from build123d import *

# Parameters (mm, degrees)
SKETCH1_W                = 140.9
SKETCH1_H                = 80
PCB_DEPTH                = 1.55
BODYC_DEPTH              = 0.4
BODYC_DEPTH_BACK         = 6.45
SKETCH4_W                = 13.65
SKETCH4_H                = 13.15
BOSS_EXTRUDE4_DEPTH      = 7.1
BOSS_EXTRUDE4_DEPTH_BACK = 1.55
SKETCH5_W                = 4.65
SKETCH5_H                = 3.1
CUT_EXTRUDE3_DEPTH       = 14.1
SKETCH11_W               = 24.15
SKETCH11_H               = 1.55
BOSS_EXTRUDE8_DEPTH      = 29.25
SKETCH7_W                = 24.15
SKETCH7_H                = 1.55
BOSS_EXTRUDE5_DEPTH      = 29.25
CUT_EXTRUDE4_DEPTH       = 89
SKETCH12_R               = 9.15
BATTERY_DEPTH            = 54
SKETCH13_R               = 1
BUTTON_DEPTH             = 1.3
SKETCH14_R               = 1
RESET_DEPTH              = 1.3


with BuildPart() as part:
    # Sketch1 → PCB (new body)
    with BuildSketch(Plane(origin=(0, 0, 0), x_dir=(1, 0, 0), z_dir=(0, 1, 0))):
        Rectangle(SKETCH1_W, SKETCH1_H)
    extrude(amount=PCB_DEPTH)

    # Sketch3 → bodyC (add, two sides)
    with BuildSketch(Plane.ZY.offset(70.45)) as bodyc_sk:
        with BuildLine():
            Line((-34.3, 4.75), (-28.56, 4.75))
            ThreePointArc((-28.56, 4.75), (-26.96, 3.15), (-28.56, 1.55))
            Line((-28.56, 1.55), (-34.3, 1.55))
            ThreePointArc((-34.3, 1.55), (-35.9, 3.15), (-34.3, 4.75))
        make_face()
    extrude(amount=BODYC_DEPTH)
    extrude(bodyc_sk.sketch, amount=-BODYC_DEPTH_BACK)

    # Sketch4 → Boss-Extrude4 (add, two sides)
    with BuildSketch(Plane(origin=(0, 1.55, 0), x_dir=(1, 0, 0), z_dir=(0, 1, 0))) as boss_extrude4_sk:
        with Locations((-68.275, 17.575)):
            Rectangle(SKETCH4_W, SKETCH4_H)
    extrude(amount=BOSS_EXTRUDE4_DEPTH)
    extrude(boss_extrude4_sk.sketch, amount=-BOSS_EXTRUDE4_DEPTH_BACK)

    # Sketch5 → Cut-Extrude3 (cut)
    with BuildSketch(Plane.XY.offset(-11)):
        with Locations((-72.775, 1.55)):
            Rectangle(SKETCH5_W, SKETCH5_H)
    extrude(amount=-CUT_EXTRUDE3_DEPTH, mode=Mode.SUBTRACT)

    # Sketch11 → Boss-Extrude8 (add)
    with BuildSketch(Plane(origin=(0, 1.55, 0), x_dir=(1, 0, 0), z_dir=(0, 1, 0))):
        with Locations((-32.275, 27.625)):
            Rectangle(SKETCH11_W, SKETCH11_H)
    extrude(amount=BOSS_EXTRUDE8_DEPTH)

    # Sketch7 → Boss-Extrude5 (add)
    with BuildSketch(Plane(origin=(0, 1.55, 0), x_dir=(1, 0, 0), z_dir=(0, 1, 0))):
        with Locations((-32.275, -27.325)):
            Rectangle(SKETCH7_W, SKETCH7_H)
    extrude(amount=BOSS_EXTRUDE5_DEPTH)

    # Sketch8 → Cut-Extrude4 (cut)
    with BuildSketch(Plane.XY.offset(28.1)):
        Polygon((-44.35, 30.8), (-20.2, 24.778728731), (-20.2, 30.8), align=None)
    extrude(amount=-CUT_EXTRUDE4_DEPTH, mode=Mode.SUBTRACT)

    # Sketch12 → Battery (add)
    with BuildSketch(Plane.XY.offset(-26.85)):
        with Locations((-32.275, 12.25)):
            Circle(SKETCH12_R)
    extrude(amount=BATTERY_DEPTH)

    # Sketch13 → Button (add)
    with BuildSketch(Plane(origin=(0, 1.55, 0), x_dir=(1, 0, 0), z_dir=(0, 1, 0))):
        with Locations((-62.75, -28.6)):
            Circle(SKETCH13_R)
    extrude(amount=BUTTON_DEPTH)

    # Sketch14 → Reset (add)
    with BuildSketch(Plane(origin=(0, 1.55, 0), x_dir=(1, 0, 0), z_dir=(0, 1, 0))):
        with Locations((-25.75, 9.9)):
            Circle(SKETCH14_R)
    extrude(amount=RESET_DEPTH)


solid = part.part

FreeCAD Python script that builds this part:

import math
import FreeCAD as App
import Part
import Sketcher
Q = App.Units.Quantity


def add_polygon(sketch, points):
    """Adds a closed chain of lines whose ends are joined by coincident constraints."""
    first, n = sketch.GeometryCount, len(points)
    for a, b in zip(points, points[1:] + points[:1]):
        sketch.addGeometry(Part.LineSegment(App.Vector(*a, 0), App.Vector(*b, 0)), False)
    for i in range(n):
        sketch.addConstraint(Sketcher.Constraint("Coincident", first + i, 2, first + (i + 1) % n, 1))

doc = App.newDocument("Part")
body = doc.addObject("PartDesign::Body", "Body")

# Sketch on XZ plane
sketch1 = doc.addObject("Sketcher::SketchObject", "Sketch")
body.addObject(sketch1)
sketch1.AttachmentSupport = (doc.XZ_Plane, [""])
sketch1.MapMode = "FlatFace"
add_polygon(sketch1, [(-70.45, -40), (-70.45, 40), (70.45, 40), (70.45, -40)])  # lines 0-3
sketch1.addConstraint([
    Sketcher.Constraint("Vertical", 0),
    Sketcher.Constraint("Horizontal", 1),
    Sketcher.Constraint("Vertical", 2),
    Sketcher.Constraint("Horizontal", 3),
    Sketcher.Constraint("Symmetric", 0, 2, 2, 2, -1, 1),
    Sketcher.Constraint("DistanceY", 0, 1, 0, 2, Q("80 mm")),
    Sketcher.Constraint("DistanceX", 1, 1, 1, 2, Q("140.9 mm")),
])
pad1 = doc.addObject("PartDesign::Pad", "Pad")
body.addObject(pad1)
pad1.Profile = sketch1
pad1.Length = 1.55
pad1.Reversed = True

# Sketch on YZ plane
sketch2 = doc.addObject("Sketcher::SketchObject", "Sketch001")
body.addObject(sketch2)
sketch2.AttachmentSupport = (doc.YZ_Plane, [""])
sketch2.MapMode = "FlatFace"
sketch2.AttachmentOffset = App.Placement(App.Vector(0, 0, -70.45), App.Rotation())
sketch2.addGeometry([
    Part.LineSegment(App.Vector(4.75, -28.56, 0), App.Vector(4.75, -34.3, 0)),
    Part.ArcOfCircle(Part.Circle(App.Vector(3.15, -34.3, 0), App.Vector(0, 0, 1), 1.6), math.radians(180), math.radians(360)),
    Part.LineSegment(App.Vector(1.55, -34.3, 0), App.Vector(1.55, -28.56, 0)),
    Part.ArcOfCircle(Part.Circle(App.Vector(3.15, -28.56, 0), App.Vector(0, 0, 1), 1.6), math.radians(0), math.radians(180)),
], False)
sketch2.addConstraint([
    Sketcher.Constraint("Tangent", 0, 2, 1, 2),
    Sketcher.Constraint("Tangent", 1, 1, 2, 1),
    Sketcher.Constraint("Tangent", 2, 2, 3, 2),
    Sketcher.Constraint("Tangent", 3, 1, 0, 1),
    Sketcher.Constraint("Vertical", 0),
    Sketcher.Constraint("Vertical", 2),
    Sketcher.Constraint("Radius", 1, Q("1.6 mm")),
    Sketcher.Constraint("DistanceY", 0, 2, 0, 1, Q("5.74 mm")),
    Sketcher.Constraint("DistanceY", 1, 3, -1, 1, Q("34.3 mm")),
    Sketcher.Constraint("DistanceX", -1, 1, 1, 3, Q("3.15 mm")),
])
pad2 = doc.addObject("PartDesign::Pad", "Pad001")
body.addObject(pad2)
pad2.Profile = sketch2
pad2.Type = "TwoLengths"
pad2.Length = 0.4
pad2.Length2 = 6.45
pad2.Reversed = True

# Sketch on XZ plane
sketch3 = doc.addObject("Sketcher::SketchObject", "Sketch002")
body.addObject(sketch3)
sketch3.AttachmentSupport = (doc.XZ_Plane, [""])
sketch3.MapMode = "FlatFace"
sketch3.AttachmentOffset = App.Placement(App.Vector(0, 0, -1.55), App.Rotation())
add_polygon(sketch3, [(-75.1, -24.15), (-75.1, -11), (-61.45, -11), (-61.45, -24.15)])  # lines 0-3
sketch3.addConstraint([
    Sketcher.Constraint("Vertical", 0),
    Sketcher.Constraint("Horizontal", 1),
    Sketcher.Constraint("Vertical", 2),
    Sketcher.Constraint("Horizontal", 3),
    Sketcher.Constraint("DistanceY", 0, 2, -1, 1, Q("11 mm")),
    Sketcher.Constraint("DistanceX", 1, 1, 1, 2, Q("13.65 mm")),
    Sketcher.Constraint("DistanceY", 0, 1, 0, 2, Q("13.15 mm")),
    Sketcher.Constraint("DistanceX", 0, 2, -1, 1, Q("75.1 mm")),
])
pad3 = doc.addObject("PartDesign::Pad", "Pad002")
body.addObject(pad3)
pad3.Profile = sketch3
pad3.Type = "TwoLengths"
pad3.Length = 7.1
pad3.Length2 = 1.55
pad3.Reversed = True

# Sketch on XY plane
sketch4 = doc.addObject("Sketcher::SketchObject", "Sketch003")
body.addObject(sketch4)
sketch4.AttachmentSupport = (doc.XY_Plane, [""])
sketch4.MapMode = "FlatFace"
sketch4.AttachmentOffset = App.Placement(App.Vector(0, 0, -11), App.Rotation())
add_polygon(sketch4, [(-75.1, 3.1), (-75.1, 0), (-70.45, 0), (-70.45, 3.1)])  # lines 0-3
sketch4.addConstraint([
    Sketcher.Constraint("Vertical", 0),
    Sketcher.Constraint("Horizontal", 1),
    Sketcher.Constraint("Vertical", 2),
    Sketcher.Constraint("Horizontal", 3),
    Sketcher.Constraint("PointOnObject", 0, 2, -1),
    Sketcher.Constraint("DistanceY", 0, 2, 0, 1, Q("3.1 mm")),
    Sketcher.Constraint("DistanceX", 1, 1, 1, 2, Q("4.65 mm")),
    Sketcher.Constraint("DistanceX", 0, 2, -1, 1, Q("75.1 mm")),
])
pocket1 = doc.addObject("PartDesign::Pocket", "Pocket")
body.addObject(pocket1)
pocket1.Profile = sketch4
pocket1.Length = 14.1

# Sketch on XZ plane
sketch5 = doc.addObject("Sketcher::SketchObject", "Sketch004")
body.addObject(sketch5)
sketch5.AttachmentSupport = (doc.XZ_Plane, [""])
sketch5.MapMode = "FlatFace"
sketch5.AttachmentOffset = App.Placement(App.Vector(0, 0, -1.55), App.Rotation())
add_polygon(sketch5, [(-44.35, -28.4), (-44.35, -26.85), (-20.2, -26.85), (-20.2, -28.4)])  # lines 0-3
sketch5.addConstraint([
    Sketcher.Constraint("Vertical", 0),
    Sketcher.Constraint("Horizontal", 1),
    Sketcher.Constraint("Vertical", 2),
    Sketcher.Constraint("Horizontal", 3),
    Sketcher.Constraint("DistanceX", 1, 1, 1, 2, Q("24.15 mm")),
    Sketcher.Constraint("DistanceY", 0, 1, 0, 2, Q("1.55 mm")),
    Sketcher.Constraint("DistanceX", 1, 2, -1, 1, Q("20.2 mm")),
    Sketcher.Constraint("DistanceY", 2, 2, -1, 1, Q("28.4 mm")),
])
pad4 = doc.addObject("PartDesign::Pad", "Pad003")
body.addObject(pad4)
pad4.Profile = sketch5
pad4.Length = 29.25
pad4.Reversed = True

# Sketch on XZ plane
sketch6 = doc.addObject("Sketcher::SketchObject", "Sketch005")
body.addObject(sketch6)
sketch6.AttachmentSupport = (doc.XZ_Plane, [""])
sketch6.MapMode = "FlatFace"
sketch6.AttachmentOffset = App.Placement(App.Vector(0, 0, -1.55), App.Rotation())
add_polygon(sketch6, [(-44.35, 26.55), (-44.35, 28.1), (-20.2, 28.1), (-20.2, 26.55)])  # lines 0-3
sketch6.addConstraint([
    Sketcher.Constraint("Vertical", 0),
    Sketcher.Constraint("Horizontal", 1),
    Sketcher.Constraint("Vertical", 2),
    Sketcher.Constraint("Horizontal", 3),
    Sketcher.Constraint("DistanceX", 1, 1, 1, 2, Q("24.15 mm")),
    Sketcher.Constraint("DistanceY", 0, 1, 0, 2, Q("1.55 mm")),
    Sketcher.Constraint("DistanceY", -1, 1, 0, 2, Q("28.1 mm")),
    Sketcher.Constraint("DistanceX", 1, 2, -1, 1, Q("20.2 mm")),
])
pad5 = doc.addObject("PartDesign::Pad", "Pad004")
body.addObject(pad5)
pad5.Profile = sketch6
pad5.Length = 29.25
pad5.Reversed = True

# Sketch on XY plane
sketch7 = doc.addObject("Sketcher::SketchObject", "Sketch006")
body.addObject(sketch7)
sketch7.AttachmentSupport = (doc.XY_Plane, [""])
sketch7.MapMode = "FlatFace"
sketch7.AttachmentOffset = App.Placement(App.Vector(0, 0, 28.1), App.Rotation())
add_polygon(sketch7, [(-44.35, 30.8), (-20.2, 24.778729), (-20.2, 30.8)])  # lines 0-2
sketch7.addConstraint([
    Sketcher.Constraint("Vertical", 1),
    Sketcher.Constraint("Horizontal", 2),
    Sketcher.Constraint("Angle", 0, Q("-14 deg")),
    Sketcher.Constraint("DistanceX", 2, 2, 2, 1, Q("24.15 mm")),
    Sketcher.Constraint("DistanceX", 0, 2, -1, 1, Q("20.2 mm")),
    Sketcher.Constraint("DistanceY", -1, 1, 1, 2, Q("30.8 mm")),
])
pocket2 = doc.addObject("PartDesign::Pocket", "Pocket001")
body.addObject(pocket2)
pocket2.Profile = sketch7
pocket2.Length = 89

# Sketch on XY plane
sketch8 = doc.addObject("Sketcher::SketchObject", "Sketch007")
body.addObject(sketch8)
sketch8.AttachmentSupport = (doc.XY_Plane, [""])
sketch8.MapMode = "FlatFace"
sketch8.AttachmentOffset = App.Placement(App.Vector(0, 0, -26.85), App.Rotation())
sketch8.addGeometry(Part.Circle(App.Vector(-32.275, 12.25, 0), App.Vector(0, 0, 1), 9.15), False)
sketch8.addConstraint([
    Sketcher.Constraint("Diameter", 0, Q("18.3 mm")),
    Sketcher.Constraint("DistanceY", -1, 1, 0, 3, Q("12.25 mm")),
    Sketcher.Constraint("DistanceX", 0, 3, -1, 1, Q("32.275 mm")),
])
pad6 = doc.addObject("PartDesign::Pad", "Pad005")
body.addObject(pad6)
pad6.Profile = sketch8
pad6.Length = 54

# Sketch on XZ plane
sketch9 = doc.addObject("Sketcher::SketchObject", "Sketch008")
body.addObject(sketch9)
sketch9.AttachmentSupport = (doc.XZ_Plane, [""])
sketch9.MapMode = "FlatFace"
sketch9.AttachmentOffset = App.Placement(App.Vector(0, 0, -1.55), App.Rotation())
sketch9.addGeometry(Part.Circle(App.Vector(-62.75, 28.6, 0), App.Vector(0, 0, 1), 1), False)
sketch9.addConstraint([
    Sketcher.Constraint("Diameter", 0, Q("2 mm")),
    Sketcher.Constraint("DistanceY", -1, 1, 0, 3, Q("28.6 mm")),
    Sketcher.Constraint("DistanceX", 0, 3, -1, 1, Q("62.75 mm")),
])
pad7 = doc.addObject("PartDesign::Pad", "Pad006")
body.addObject(pad7)
pad7.Profile = sketch9
pad7.Length = 1.3
pad7.Reversed = True

# Sketch on XZ plane
sketch10 = doc.addObject("Sketcher::SketchObject", "Sketch009")
body.addObject(sketch10)
sketch10.AttachmentSupport = (doc.XZ_Plane, [""])
sketch10.MapMode = "FlatFace"
sketch10.AttachmentOffset = App.Placement(App.Vector(0, 0, -1.55), App.Rotation())
sketch10.addGeometry(Part.Circle(App.Vector(-25.75, -9.9, 0), App.Vector(0, 0, 1), 1), False)
sketch10.addConstraint([
    Sketcher.Constraint("Diameter", 0, Q("2 mm")),
    Sketcher.Constraint("DistanceY", 0, 3, -1, 1, Q("9.9 mm")),
    Sketcher.Constraint("DistanceX", 0, 3, -1, 1, Q("25.75 mm")),
])
pad8 = doc.addObject("PartDesign::Pad", "Pad007")
body.addObject(pad8)
pad8.Profile = sketch10
pad8.Length = 1.3
pad8.Reversed = True

doc.recompute()
